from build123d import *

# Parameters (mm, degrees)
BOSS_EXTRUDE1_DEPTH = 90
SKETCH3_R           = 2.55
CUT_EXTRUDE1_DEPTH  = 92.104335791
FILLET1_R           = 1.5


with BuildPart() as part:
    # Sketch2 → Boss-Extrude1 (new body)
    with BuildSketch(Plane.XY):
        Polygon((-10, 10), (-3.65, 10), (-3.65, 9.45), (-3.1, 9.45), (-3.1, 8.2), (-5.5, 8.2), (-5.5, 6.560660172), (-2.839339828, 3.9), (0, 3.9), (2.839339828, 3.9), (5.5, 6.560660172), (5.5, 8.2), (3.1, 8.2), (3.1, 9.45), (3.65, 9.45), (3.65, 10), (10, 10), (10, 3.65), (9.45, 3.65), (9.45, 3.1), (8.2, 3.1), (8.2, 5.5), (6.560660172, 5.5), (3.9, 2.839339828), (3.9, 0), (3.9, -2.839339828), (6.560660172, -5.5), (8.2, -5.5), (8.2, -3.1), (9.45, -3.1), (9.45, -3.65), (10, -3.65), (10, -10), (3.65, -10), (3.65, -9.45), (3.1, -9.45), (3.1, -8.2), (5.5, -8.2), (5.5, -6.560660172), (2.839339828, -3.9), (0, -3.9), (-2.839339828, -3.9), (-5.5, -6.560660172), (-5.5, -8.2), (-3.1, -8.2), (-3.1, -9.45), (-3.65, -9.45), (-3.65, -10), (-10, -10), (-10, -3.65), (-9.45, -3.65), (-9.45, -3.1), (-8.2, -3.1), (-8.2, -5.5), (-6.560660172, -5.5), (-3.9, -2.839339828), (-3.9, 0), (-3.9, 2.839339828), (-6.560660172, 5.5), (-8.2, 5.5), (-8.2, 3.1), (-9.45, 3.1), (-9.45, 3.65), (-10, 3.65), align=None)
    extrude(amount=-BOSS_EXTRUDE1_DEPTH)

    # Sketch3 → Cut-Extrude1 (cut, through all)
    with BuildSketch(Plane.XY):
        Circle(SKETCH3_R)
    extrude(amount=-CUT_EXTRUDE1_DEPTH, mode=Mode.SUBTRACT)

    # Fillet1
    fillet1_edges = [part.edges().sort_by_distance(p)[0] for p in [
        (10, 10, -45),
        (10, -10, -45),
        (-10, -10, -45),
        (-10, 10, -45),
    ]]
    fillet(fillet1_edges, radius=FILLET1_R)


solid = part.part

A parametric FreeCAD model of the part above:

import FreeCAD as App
import Part
import Sketcher
from FreeCAD import Vector
Q = App.Units.Quantity


def edges_at(feature, points):
    """Names of the edges that pass closest to the given points."""
    edges = feature.Shape.Edges
    near = lambda p: min(range(len(edges)), key=lambda i: edges[i].distToShape(Part.Vertex(*p))[0])
    return sorted({f"Edge{near(p) + 1}" for p in points})

doc = App.newDocument("Part")
params = doc.addObject("Spreadsheet::Sheet", "Params")
for row, (alias, value) in enumerate([
    ("sketch1_width", "2.4 mm"),
    ("sketch1_width2", "6.35 mm"),
    ("sketch1_width3", "0.55 mm"),
    ("sketch1_width4", "1.25 mm"),
    ("pad1_length", "90 mm"),
    ("sketch2_diameter", "5.1 mm"),
    ("fillet_radius", "1.5 mm"),
], start=1):
    params.set(f"A{row}", alias)
    params.set(f"B{row}", "=" + value)
    params.setAlias(f"B{row}", alias)

body = doc.addObject("PartDesign::Body", "Body")

# Sketch on XY plane
sketch1 = doc.addObject("Sketcher::SketchObject", "Sketch")
body.addObject(sketch1)
sketch1.AttachmentSupport = (doc.XY_Plane, [""])
sketch1.MapMode = "FlatFace"
sketch1.addGeometry([
    Part.LineSegment(Vector(-3.65, 10, 0), Vector(-10, 10, 0)),  # 0
    Part.LineSegment(Vector(-10, 10, 0), Vector(-10, 3.65, 0)),  # 1
    Part.LineSegment(Vector(-10, 3.65, 0), Vector(-9.45, 3.65, 0)),  # 2
    Part.LineSegment(Vector(-9.45, 3.65, 0), Vector(-9.45, 3.1, 0)),  # 3
    Part.LineSegment(Vector(-9.45, 3.1, 0), Vector(-8.2, 3.1, 0)),  # 4
    Part.LineSegment(Vector(-8.2, 3.1, 0), Vector(-8.2, 5.5, 0)),  # 5
    Part.LineSegment(Vector(-8.2, 5.5, 0), Vector(-6.56066, 5.5, 0)),  # 6
    Part.LineSegment(Vector(-6.56066, 5.5, 0), Vector(-3.9, 2.83934, 0)),  # 7
    Part.LineSegment(Vector(-3.9, 2.83934, 0), Vector(-3.9, -2.83934, 0)),  # 8
    Part.LineSegment(Vector(-3.9, -2.83934, 0), Vector(-6.56066, -5.5, 0)),  # 9
    Part.LineSegment(Vector(-6.56066, -5.5, 0), Vector(-8.2, -5.5, 0)),  # 10
    Part.LineSegment(Vector(-8.2, -5.5, 0), Vector(-8.2, -3.1, 0)),  # 11
    Part.LineSegment(Vector(-8.2, -3.1, 0), Vector(-9.45, -3.1, 0)),  # 12
    Part.LineSegment(Vector(-9.45, -3.1, 0), Vector(-9.45, -3.65, 0)),  # 13
    Part.LineSegment(Vector(-9.45, -3.65, 0), Vector(-10, -3.65, 0)),  # 14
    Part.LineSegment(Vector(-10, -3.65, 0), Vector(-10, -10, 0)),  # 15
    Part.LineSegment(Vector(-10, -10, 0), Vector(-3.65, -10, 0)),  # 16
    Part.LineSegment(Vector(-3.65, -10, 0), Vector(-3.65, -9.45, 0)),  # 17
    Part.LineSegment(Vector(-3.65, -9.45, 0), Vector(-3.1, -9.45, 0)),  # 18
    Part.LineSegment(Vector(-3.1, -9.45, 0), Vector(-3.1, -8.2, 0)),  # 19
    Part.LineSegment(Vector(-3.1, -8.2, 0), Vector(-5.5, -8.2, 0)),  # 20
    Part.LineSegment(Vector(-5.5, -8.2, 0), Vector(-5.5, -6.56066, 0)),  # 21
    Part.LineSegment(Vector(-5.5, -6.56066, 0), Vector(-2.83934, -3.9, 0)),  # 22
    Part.LineSegment(Vector(-2.83934, -3.9, 0), Vector(2.83934, -3.9, 0)),  # 23
    Part.LineSegment(Vector(2.83934, -3.9, 0), Vector(5.5, -6.56066, 0)),  # 24
    Part.LineSegment(Vector(5.5, -6.56066, 0), Vector(5.5, -8.2, 0)),  # 25
    Part.LineSegment(Vector(5.5, -8.2, 0), Vector(3.1, -8.2, 0)),  # 26
    Part.LineSegment(Vector(3.1, -8.2, 0), Vector(3.1, -9.45, 0)),  # 27
    Part.LineSegment(Vector(3.1, -9.45, 0), Vector(3.65, -9.45, 0)),  # 28
    Part.LineSegment(Vector(3.65, -9.45, 0), Vector(3.65, -10, 0)),  # 29
    Part.LineSegment(Vector(3.65, -10, 0), Vector(10, -10, 0)),  # 30
    Part.LineSegment(Vector(10, -10, 0), Vector(10, -3.65, 0)),  # 31
    Part.LineSegment(Vector(10, -3.65, 0), Vector(9.45, -3.65, 0)),  # 32
    Part.LineSegment(Vector(9.45, -3.65, 0), Vector(9.45, -3.1, 0)),  # 33
    Part.LineSegment(Vector(9.45, -3.1, 0), Vector(8.2, -3.1, 0)),  # 34
    Part.LineSegment(Vector(8.2, -3.1, 0), Vector(8.2, -5.5, 0)),  # 35
    Part.LineSegment(Vector(8.2, -5.5, 0), Vector(6.56066, -5.5, 0)),  # 36
    Part.LineSegment(Vector(6.56066, -5.5, 0), Vector(3.9, -2.83934, 0)),  # 37
    Part.LineSegment(Vector(3.9, -2.83934, 0), Vector(3.9, 2.83934, 0)),  # 38
    Part.LineSegment(Vector(3.9, 2.83934, 0), Vector(6.56066, 5.5, 0)),  # 39
    Part.LineSegment(Vector(6.56066, 5.5, 0), Vector(8.2, 5.5, 0)),  # 40
    Part.LineSegment(Vector(8.2, 5.5, 0), Vector(8.2, 3.1, 0)),  # 41
    Part.LineSegment(Vector(8.2, 3.1, 0), Vector(9.45, 3.1, 0)),  # 42
    Part.LineSegment(Vector(9.45, 3.1, 0), Vector(9.45, 3.65, 0)),  # 43
    Part.LineSegment(Vector(9.45, 3.65, 0), Vector(10, 3.65, 0)),  # 44
    Part.LineSegment(Vector(10, 3.65, 0), Vector(10, 10, 0)),  # 45
    Part.LineSegment(Vector(10, 10, 0), Vector(3.65, 10, 0)),  # 46
    Part.LineSegment(Vector(3.65, 10, 0), Vector(3.65, 9.45, 0)),  # 47
    Part.LineSegment(Vector(3.65, 9.45, 0), Vector(3.1, 9.45, 0)),  # 48
    Part.LineSegment(Vector(3.1, 9.45, 0), Vector(3.1, 8.2, 0)),  # 49
    Part.LineSegment(Vector(3.1, 8.2, 0), Vector(5.5, 8.2, 0)),  # 50
    Part.LineSegment(Vector(5.5, 8.2, 0), Vector(5.5, 6.56066, 0)),  # 51
    Part.LineSegment(Vector(5.5, 6.56066, 0), Vector(2.83934, 3.9, 0)),  # 52
    Part.LineSegment(Vector(2.83934, 3.9, 0), Vector(-2.83934, 3.9, 0)),  # 53
    Part.LineSegment(Vector(-2.83934, 3.9, 0), Vector(-5.5, 6.56066, 0)),  # 54
    Part.LineSegment(Vector(-5.5, 6.56066, 0), Vector(-5.5, 8.2, 0)),  # 55
    Part.LineSegment(Vector(-5.5, 8.2, 0), Vector(-3.1, 8.2, 0)),  # 56
    Part.LineSegment(Vector(-3.1, 8.2, 0), Vector(-3.1, 9.45, 0)),  # 57
    Part.LineSegment(Vector(-3.1, 9.45, 0), Vector(-3.65, 9.45, 0)),  # 58
    Part.LineSegment(Vector(-3.65, 9.45, 0), Vector(-3.65, 10, 0)),  # 59
], False)
sketch1.addConstraint([
    Sketcher.Constraint("Coincident", 0, 2, 1, 1),
    Sketcher.Constraint("Coincident", 1, 2, 2, 1),
    Sketcher.Constraint("Coincident", 2, 2, 3, 1),
    Sketcher.Constraint("Coincident", 3, 2, 4, 1),
    Sketcher.Constraint("Coincident", 4, 2, 5, 1),
    Sketcher.Constraint("Coincident", 5, 2, 6, 1),
    Sketcher.Constraint("Coincident", 6, 2, 7, 1),
    Sketcher.Constraint("Coincident", 7, 2, 8, 1),
    Sketcher.Constraint("Coincident", 8, 2, 9, 1),
    Sketcher.Constraint("Coincident", 9, 2, 10, 1),
    Sketcher.Constraint("Coincident", 10, 2, 11, 1),
    Sketcher.Constraint("Coincident", 11, 2, 12, 1),
    Sketcher.Constraint("Coincident", 12, 2, 13, 1),
    Sketcher.Constraint("Coincident", 13, 2, 14, 1),
    Sketcher.Constraint("Coincident", 14, 2, 15, 1),
    Sketcher.Constraint("Coincident", 15, 2, 16, 1),
    Sketcher.Constraint("Coincident", 16, 2, 17, 1),
    Sketcher.Constraint("Coincident", 17, 2, 18, 1),
    Sketcher.Constraint("Coincident", 18, 2, 19, 1),
    Sketcher.Constraint("Coincident", 19, 2, 20, 1),
    Sketcher.Constraint("Coincident", 20, 2, 21, 1),
    Sketcher.Constraint("Coincident", 21, 2, 22, 1),
    Sketcher.Constraint("Coincident", 22, 2, 23, 1),
    Sketcher.Constraint("Coincident", 23, 2, 24, 1),
    Sketcher.Constraint("Coincident", 24, 2, 25, 1),
    Sketcher.Constraint("Coincident", 25, 2, 26, 1),
    Sketcher.Constraint("Coincident", 26, 2, 27, 1),
    Sketcher.Constraint("Coincident", 27, 2, 28, 1),
    Sketcher.Constraint("Coincident", 28, 2, 29, 1),
    Sketcher.Constraint("Coincident", 29, 2, 30, 1),
    Sketcher.Constraint("Coincident", 30, 2, 31, 1),
    Sketcher.Constraint("Coincident", 31, 2, 32, 1),
    Sketcher.Constraint("Coincident", 32, 2, 33, 1),
    Sketcher.Constraint("Coincident", 33, 2, 34, 1),
    Sketcher.Constraint("Coincident", 34, 2, 35, 1),
    Sketcher.Constraint("Coincident", 35, 2, 36, 1),
    Sketcher.Constraint("Coincident", 36, 2, 37, 1),
    Sketcher.Constraint("Coincident", 37, 2, 38, 1),
    Sketcher.Constraint("Coincident", 38, 2, 39, 1),
    Sketcher.Constraint("Coincident", 39, 2, 40, 1),
    Sketcher.Constraint("Coincident", 40, 2, 41, 1),
    Sketcher.Constraint("Coincident", 41, 2, 42, 1),
    Sketcher.Constraint("Coincident", 42, 2, 43, 1),
    Sketcher.Constraint("Coincident", 43, 2, 44, 1),
    Sketcher.Constraint("Coincident", 44, 2, 45, 1),
    Sketcher.Constraint("Coincident", 45, 2, 46, 1),
    Sketcher.Constraint("Coincident", 46, 2, 47, 1),
    Sketcher.Constraint("Coincident", 47, 2, 48, 1),
    Sketcher.Constraint("Coincident", 48, 2, 49, 1),
    Sketcher.Constraint("Coincident", 49, 2, 50, 1),
    Sketcher.Constraint("Coincident", 50, 2, 51, 1),
    Sketcher.Constraint("Coincident", 51, 2, 52, 1),
    Sketcher.Constraint("Coincident", 52, 2, 53, 1),
    Sketcher.Constraint("Coincident", 53, 2, 54, 1),
    Sketcher.Constraint("Coincident", 54, 2, 55, 1),
    Sketcher.Constraint("Coincident", 55, 2, 56, 1),
    Sketcher.Constraint("Coincident", 56, 2, 57, 1),
    Sketcher.Constraint("Coincident", 57, 2, 58, 1),
    Sketcher.Constraint("Coincident", 58, 2, 59, 1),
    Sketcher.Constraint("Coincident", 59, 2, 0, 1),
    Sketcher.Constraint("Horizontal", 0),
    Sketcher.Constraint("Vertical", 1),
    Sketcher.Constraint("Horizontal", 2),
    Sketcher.Constraint("Vertical", 3),
    Sketcher.Constraint("Horizontal", 4),
    Sketcher.Constraint("Vertical", 5),
    Sketcher.Constraint("Horizontal", 6),
    Sketcher.Constraint("Vertical", 8),
    Sketcher.Constraint("Horizontal", 10),
    Sketcher.Constraint("Vertical", 11),
    Sketcher.Constraint("Horizontal", 12),
    Sketcher.Constraint("Vertical", 13),
    Sketcher.Constraint("Horizontal", 14),
    Sketcher.Constraint("Vertical", 15),
    Sketcher.Constraint("Horizontal", 16),
    Sketcher.Constraint("Vertical", 17),
    Sketcher.Constraint("Horizontal", 18),
    Sketcher.Constraint("Vertical", 19),
    Sketcher.Constraint("Horizontal", 20),
    Sketcher.Constraint("Vertical", 21),
    Sketcher.Constraint("Horizontal", 23),
    Sketcher.Constraint("Vertical", 25),
    Sketcher.Constraint("Horizontal", 26),
    Sketcher.Constraint("Vertical", 27),
    Sketcher.Constraint("Horizontal", 28),
    Sketcher.Constraint("Vertical", 29),
    Sketcher.Constraint("Horizontal", 30),
    Sketcher.Constraint("Vertical", 31),
    Sketcher.Constraint("Horizontal", 32),
    Sketcher.Constraint("Vertical", 33),
    Sketcher.Constraint("Horizontal", 34),
    Sketcher.Constraint("Vertical", 35),
    Sketcher.Constraint("Horizontal", 36),
    Sketcher.Constraint("Vertical", 38),
    Sketcher.Constraint("Horizontal", 40),
    Sketcher.Constraint("Vertical", 41),
    Sketcher.Constraint("Horizontal", 42),
    Sketcher.Constraint("Vertical", 43),
    Sketcher.Constraint("Horizontal", 44),
    Sketcher.Constraint("Vertical", 45),
    Sketcher.Constraint("Horizontal", 46),
    Sketcher.Constraint("Vertical", 47),
    Sketcher.Constraint("Horizontal", 48),
    Sketcher.Constraint("Vertical", 49),
    Sketcher.Constraint("Horizontal", 50),
    Sketcher.Constraint("Vertical", 51),
    Sketcher.Constraint("Horizontal", 53),
    Sketcher.Constraint("Vertical", 55),
    Sketcher.Constraint("Horizontal", 56),
    Sketcher.Constraint("Vertical", 57),
    Sketcher.Constraint("Horizontal", 58),
    Sketcher.Constraint("Vertical", 59),
    Sketcher.Constraint("Symmetric", 0, 2, 30, 2, -1, 1),
    Sketcher.Constraint("Symmetric", 2, 2, 32, 2, -1, 1),
    Sketcher.Constraint("Symmetric", 4, 2, 34, 2, -1, 1),
    Sketcher.Constraint("Symmetric", 6, 2, 36, 2, -1, 1),
    Sketcher.Constraint("Symmetric", 7, 2, 37, 2, -1, 1),
    Sketcher.Constraint("Symmetric", 9, 2, 39, 2, -1, 1),
    Sketcher.Constraint("Symmetric", 11, 2, 41, 2, -1, 1),
    Sketcher.Constraint("Symmetric", 13, 2, 43, 2, -1, 1),
    Sketcher.Constraint("Symmetric", 15, 2, 45, 2, -1, 1),
    Sketcher.Constraint("Symmetric", 17, 2, 47, 2, -1, 1),
    Sketcher.Constraint("Symmetric", 19, 2, 49, 2, -1, 1),
    Sketcher.Constraint("Symmetric", 21, 2, 51, 2, -1, 1),
    Sketcher.Constraint("Symmetric", 22, 2, 52, 2, -1, 1),
    Sketcher.Constraint("Symmetric", 24, 2, 54, 2, -1, 1),
    Sketcher.Constraint("Symmetric", 26, 2, 56, 2, -1, 1),
    Sketcher.Constraint("Symmetric", 28, 2, 58, 2, -1, 1),
    Sketcher.Constraint("Symmetric", 21, 2, 24, 2, -2),
    Sketcher.Constraint("Symmetric", 19, 2, 26, 2, -2),
    Sketcher.Constraint("Symmetric", 17, 2, 28, 2, -2),
    Sketcher.Constraint("Symmetric", 15, 2, 30, 2, -2),
    Sketcher.Constraint("Symmetric", 13, 2, 32, 2, -2),
    Sketcher.Constraint("Symmetric", 11, 2, 34, 2, -2),
    Sketcher.Constraint("Symmetric", 9, 2, 36, 2, -2),
    Sketcher.Constraint("Perpendicular", 7, 9),
    Sketcher.Constraint("Parallel", 9, 22),
    Sketcher.Constraint("Perpendicular", 22, 24),
    Sketcher.Constraint("Perpendicular", 37, 39),
    Sketcher.Constraint("Perpendicular", 52, 54),
    Sketcher.Constraint("Horizontal", 8, 2, 37, 2),
    Sketcher.Constraint("Equal", 14, 18),
    Sketcher.Constraint("Equal", 46, 1),
    Sketcher.Constraint("Equal", 58, 3),
    Sketcher.Constraint("Equal", 56, 5),
    Sketcher.Constraint("Equal", 53, 8),
    Sketcher.Constraint("Equal", 13, 17),
    Sketcher.Constraint("Equal", 42, 19),
    Sketcher.Constraint("Equal", 40, 21),
    Sketcher.Constraint("Equal", 9, 22),
    Sketcher.Constraint("DistanceX", 20, 2, 20, 1, Q("2.4 mm")),
    Sketcher.Constraint("DistanceX", 0, 2, -1, 1, Q("10 mm")),
    Sketcher.Constraint("DistanceX", 0, 2, 0, 1, Q("6.35 mm")),
    Sketcher.Constraint("DistanceX", 2, 1, 2, 2, Q("0.55 mm")),
    Sketcher.Constraint("DistanceX", 4, 1, 4, 2, Q("1.25 mm")),
    Sketcher.Constraint("DistanceX", 7, 2, -1, 1, Q("3.9 mm")),
    Sketcher.Constraint("DistanceX", 6, 1, 6, 2, Q("1.63934 mm")),
])
sketch1.setExpression("Constraints[150]", "Params.sketch1_width")
sketch1.setExpression("Constraints[152]", "Params.sketch1_width2")
sketch1.setExpression("Constraints[153]", "Params.sketch1_width3")
sketch1.setExpression("Constraints[154]", "Params.sketch1_width4")
pad1 = doc.addObject("PartDesign::Pad", "Pad")
body.addObject(pad1)
pad1.Profile = sketch1
pad1.setExpression("Length", "Params.pad1_length")
pad1.Reversed = True

# Sketch on XY plane
sketch2 = doc.addObject("Sketcher::SketchObject", "Sketch001")
body.addObject(sketch2)
sketch2.AttachmentSupport = (doc.XY_Plane, [""])
sketch2.MapMode = "FlatFace"
sketch2.addGeometry(Part.Circle(Vector(0, 0, 0), Vector(0, 0, 1), 2.55), False)
sketch2.addConstraint([
    Sketcher.Constraint("Coincident", 0, 3, -1, 1),
    Sketcher.Constraint("Diameter", 0, Q("5.1 mm")),
])
sketch2.setExpression("Constraints[1]", "Params.sketch2_diameter")
pocket1 = doc.addObject("PartDesign::Pocket", "Pocket")
body.addObject(pocket1)
pocket1.Profile = sketch2
pocket1.Type = "ThroughAll"
doc.recompute()

fillet = doc.addObject("PartDesign::Fillet", "Fillet")
body.addObject(fillet)
fillet.Base = (pocket1, edges_at(pocket1, [
    (10, 10, -45),
    (10, -10, -45),
    (-10, -10, -45),
    (-10, 10, -45),
]))
fillet.setExpression("Radius", "Params.fillet_radius")

doc.recompute()
